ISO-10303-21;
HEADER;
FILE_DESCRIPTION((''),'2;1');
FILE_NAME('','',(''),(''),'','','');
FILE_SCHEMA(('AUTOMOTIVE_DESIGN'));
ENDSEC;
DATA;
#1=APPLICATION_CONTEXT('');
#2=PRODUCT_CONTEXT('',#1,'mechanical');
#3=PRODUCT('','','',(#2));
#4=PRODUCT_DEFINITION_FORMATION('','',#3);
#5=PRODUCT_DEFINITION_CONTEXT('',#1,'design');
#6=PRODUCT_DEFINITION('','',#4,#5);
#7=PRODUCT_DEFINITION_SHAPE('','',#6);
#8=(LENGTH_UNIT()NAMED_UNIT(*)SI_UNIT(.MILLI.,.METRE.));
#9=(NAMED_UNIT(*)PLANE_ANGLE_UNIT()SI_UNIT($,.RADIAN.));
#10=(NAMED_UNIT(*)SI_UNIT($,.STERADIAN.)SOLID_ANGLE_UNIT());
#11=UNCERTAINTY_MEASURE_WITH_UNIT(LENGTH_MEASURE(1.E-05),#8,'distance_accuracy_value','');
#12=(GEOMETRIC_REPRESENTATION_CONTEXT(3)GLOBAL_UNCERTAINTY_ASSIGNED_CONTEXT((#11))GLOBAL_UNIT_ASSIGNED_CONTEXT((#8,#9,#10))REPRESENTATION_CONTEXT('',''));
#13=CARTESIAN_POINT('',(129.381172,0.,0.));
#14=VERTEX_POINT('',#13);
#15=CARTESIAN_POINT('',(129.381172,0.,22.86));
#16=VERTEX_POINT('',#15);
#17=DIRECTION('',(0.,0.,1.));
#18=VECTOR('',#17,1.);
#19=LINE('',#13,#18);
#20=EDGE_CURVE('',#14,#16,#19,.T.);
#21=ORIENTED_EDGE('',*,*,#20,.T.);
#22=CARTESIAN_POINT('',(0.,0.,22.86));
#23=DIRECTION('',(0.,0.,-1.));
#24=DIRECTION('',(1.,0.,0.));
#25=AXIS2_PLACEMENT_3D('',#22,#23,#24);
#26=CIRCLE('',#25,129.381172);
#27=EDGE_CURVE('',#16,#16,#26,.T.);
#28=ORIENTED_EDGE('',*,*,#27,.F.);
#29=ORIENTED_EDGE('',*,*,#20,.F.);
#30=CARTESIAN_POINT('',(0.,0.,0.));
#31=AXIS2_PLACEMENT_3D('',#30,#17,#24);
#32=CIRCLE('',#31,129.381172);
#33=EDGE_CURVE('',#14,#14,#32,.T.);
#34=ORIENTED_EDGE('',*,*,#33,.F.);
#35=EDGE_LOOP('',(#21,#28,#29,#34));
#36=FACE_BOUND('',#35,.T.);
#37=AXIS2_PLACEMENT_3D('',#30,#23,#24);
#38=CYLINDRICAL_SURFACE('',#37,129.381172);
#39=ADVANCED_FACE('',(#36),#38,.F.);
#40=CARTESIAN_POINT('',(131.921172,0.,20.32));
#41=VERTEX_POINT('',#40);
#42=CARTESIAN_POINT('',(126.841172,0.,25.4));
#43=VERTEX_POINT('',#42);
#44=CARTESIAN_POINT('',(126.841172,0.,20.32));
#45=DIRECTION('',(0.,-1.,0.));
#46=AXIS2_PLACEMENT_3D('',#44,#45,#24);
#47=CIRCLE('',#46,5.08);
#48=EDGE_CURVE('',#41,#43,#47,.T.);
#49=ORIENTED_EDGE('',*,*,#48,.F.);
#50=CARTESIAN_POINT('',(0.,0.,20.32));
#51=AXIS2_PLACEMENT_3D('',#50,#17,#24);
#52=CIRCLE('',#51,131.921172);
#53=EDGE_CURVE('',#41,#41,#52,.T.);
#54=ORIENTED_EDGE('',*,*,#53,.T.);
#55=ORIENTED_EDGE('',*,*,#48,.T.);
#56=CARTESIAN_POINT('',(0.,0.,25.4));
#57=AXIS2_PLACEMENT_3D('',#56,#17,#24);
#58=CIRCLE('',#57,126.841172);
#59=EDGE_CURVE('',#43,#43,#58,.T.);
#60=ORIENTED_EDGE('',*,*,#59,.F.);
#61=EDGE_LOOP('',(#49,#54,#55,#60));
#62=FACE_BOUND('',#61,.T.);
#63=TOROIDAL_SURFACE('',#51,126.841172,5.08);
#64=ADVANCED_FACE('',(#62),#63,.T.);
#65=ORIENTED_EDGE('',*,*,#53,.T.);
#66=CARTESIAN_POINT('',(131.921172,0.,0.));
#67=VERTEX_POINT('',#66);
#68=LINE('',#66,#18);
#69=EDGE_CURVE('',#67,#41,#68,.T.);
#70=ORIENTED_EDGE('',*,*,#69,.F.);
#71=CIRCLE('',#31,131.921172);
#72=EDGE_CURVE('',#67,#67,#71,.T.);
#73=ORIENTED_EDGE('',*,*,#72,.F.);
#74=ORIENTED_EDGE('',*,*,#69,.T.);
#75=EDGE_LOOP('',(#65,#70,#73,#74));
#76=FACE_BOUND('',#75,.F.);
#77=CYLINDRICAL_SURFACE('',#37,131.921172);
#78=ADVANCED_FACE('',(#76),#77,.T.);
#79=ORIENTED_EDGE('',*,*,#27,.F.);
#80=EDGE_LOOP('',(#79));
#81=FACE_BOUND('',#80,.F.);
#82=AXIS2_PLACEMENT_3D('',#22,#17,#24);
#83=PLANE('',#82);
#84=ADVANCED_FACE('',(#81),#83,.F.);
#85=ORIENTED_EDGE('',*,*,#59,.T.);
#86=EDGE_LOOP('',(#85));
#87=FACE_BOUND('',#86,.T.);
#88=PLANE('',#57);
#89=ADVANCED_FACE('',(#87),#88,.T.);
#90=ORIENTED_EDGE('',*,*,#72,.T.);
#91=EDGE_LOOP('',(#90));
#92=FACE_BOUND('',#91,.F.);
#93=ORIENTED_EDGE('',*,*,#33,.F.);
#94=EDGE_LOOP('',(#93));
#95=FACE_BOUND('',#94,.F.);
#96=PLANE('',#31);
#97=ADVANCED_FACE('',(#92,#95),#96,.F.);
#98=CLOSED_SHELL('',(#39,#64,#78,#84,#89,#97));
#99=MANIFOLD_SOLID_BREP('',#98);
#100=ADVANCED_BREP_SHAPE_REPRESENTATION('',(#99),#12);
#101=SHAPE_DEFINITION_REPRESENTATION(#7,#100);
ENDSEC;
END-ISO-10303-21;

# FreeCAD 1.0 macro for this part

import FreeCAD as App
import Part
import Sketcher

V = App.Vector
Q = App.Units.Quantity


def edges_at(feature, points):
    """Names of the edges that pass closest to the given points."""
    edges = feature.Shape.Edges
    near = lambda p: min(range(len(edges)), key=lambda i: edges[i].distToShape(Part.Vertex(*p))[0])
    return sorted({f"Edge{near(p) + 1}" for p in points})


def faces_at(feature, points):
    """Names of the faces that lie closest to the given points."""
    faces = feature.Shape.Faces
    near = lambda p: min(range(len(faces)), key=lambda i: faces[i].distToShape(Part.Vertex(*p))[0])
    return sorted({f"Face{near(p) + 1}" for p in points})

doc = App.newDocument("Part")
body = doc.addObject("PartDesign::Body", "Body")

# Sketch on XY plane
sketch1 = body.newObject("Sketcher::SketchObject", "Sketch")
sketch1.AttachmentSupport = (doc.getObject("XY_Plane"), [""])
sketch1.MapMode = "FlatFace"
sketch1.addGeometry(Part.Circle(V(0, 0, 0), V(0, 0, 1), 131.921172), False)
sketch1.addConstraint(Sketcher.Constraint("Coincident", 0, 3, -1, 1))
sketch1.addConstraint(Sketcher.Constraint("Diameter", 0, 263.842344))
pad1 = body.newObject("PartDesign::Pad", "Pad")
pad1.Profile = sketch1
pad1.Length = Q("1 in")
doc.recompute()

thickness = body.newObject("PartDesign::Thickness", "Thickness")
thickness.Base = (pad1, faces_at(pad1, [(0, 0, 0)]))
thickness.Value = Q("0.1 in")
thickness.Reversed = True
thickness.Join = "Arc"
doc.recompute()

fillet = body.newObject("PartDesign::Fillet", "Fillet")
fillet.Base = (thickness, edges_at(thickness, [(-131.921, 0, 25.4)]))
fillet.Radius = Q("0.2 in")

doc.recompute()
